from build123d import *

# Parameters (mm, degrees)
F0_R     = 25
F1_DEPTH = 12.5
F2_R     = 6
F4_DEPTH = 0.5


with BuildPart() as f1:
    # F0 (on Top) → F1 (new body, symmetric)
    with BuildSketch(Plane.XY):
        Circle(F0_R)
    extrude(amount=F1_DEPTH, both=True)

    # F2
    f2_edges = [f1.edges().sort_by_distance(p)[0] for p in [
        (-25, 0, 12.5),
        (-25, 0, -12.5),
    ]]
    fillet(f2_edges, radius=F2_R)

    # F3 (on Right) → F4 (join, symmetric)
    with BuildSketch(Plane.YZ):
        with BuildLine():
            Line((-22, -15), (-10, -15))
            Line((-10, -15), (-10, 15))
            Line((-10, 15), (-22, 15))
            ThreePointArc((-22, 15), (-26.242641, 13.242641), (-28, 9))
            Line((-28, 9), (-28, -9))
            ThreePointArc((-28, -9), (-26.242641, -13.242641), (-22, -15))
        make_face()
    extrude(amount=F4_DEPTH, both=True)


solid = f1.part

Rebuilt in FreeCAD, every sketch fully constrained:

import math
import FreeCAD as App
import Part
import Sketcher


def edges_at(feature, points):
    """Names of the edges that pass closest to the given points."""
    edges = feature.Shape.Edges
    near = lambda p: min(range(len(edges)), key=lambda i: edges[i].distToShape(Part.Vertex(*p))[0])
    return sorted({f"Edge{near(p) + 1}" for p in points})

doc = App.newDocument("Part")
body = doc.addObject("PartDesign::Body", "Body")

# Sketch on XY plane
sketch1 = doc.addObject("Sketcher::SketchObject", "Sketch")
body.addObject(sketch1)
sketch1.AttachmentSupport = (doc.XY_Plane, [""])
sketch1.MapMode = "FlatFace"
sketch1.addGeometry(Part.Circle(App.Vector(0, 0, 0), App.Vector(0, 0, 1), 25), False)
sketch1.addConstraint([
    Sketcher.Constraint("Coincident", 0, 3, -1, 1),
    Sketcher.Constraint("Diameter", 0, 50.0),
])
pad1 = doc.addObject("PartDesign::Pad", "Pad")
body.addObject(pad1)
pad1.Profile = sketch1
pad1.Length = 25
pad1.Midplane = True
doc.recompute()

fillet = doc.addObject("PartDesign::Fillet", "Fillet")
body.addObject(fillet)
fillet.Base = (pad1, edges_at(pad1, [(-25, 0, 12.5), (-25, 0, -12.5)]))
fillet.Radius = 6

# Sketch on YZ plane
sketch2 = doc.addObject("Sketcher::SketchObject", "Sketch001")
body.addObject(sketch2)
sketch2.AttachmentSupport = (doc.YZ_Plane, [""])
sketch2.MapMode = "FlatFace"
sketch2.addGeometry([
    Part.LineSegment(App.Vector(-22, -15, 0), App.Vector(-10, -15, 0)),  # 0
    Part.LineSegment(App.Vector(-10, -15, 0), App.Vector(-10, 15, 0)),  # 1
    Part.LineSegment(App.Vector(-10, 15, 0), App.Vector(-22, 15, 0)),  # 2
    Part.ArcOfCircle(Part.Circle(App.Vector(-22.000001, 9.000001, 0), App.Vector(0, 0, 1), 5.999999), math.radians(89.99999), math.radians(180.00001)),  # 3
    Part.LineSegment(App.Vector(-28, 9, 0), App.Vector(-28, -9, 0)),  # 4
    Part.ArcOfCircle(Part.Circle(App.Vector(-22.000001, -9.000001, 0), App.Vector(0, 0, 1), 5.999999), math.radians(179.99999), math.radians(270.00001)),  # 5
], False)
sketch2.addConstraint([
    Sketcher.Constraint("Coincident", 0, 2, 1, 1),
    Sketcher.Constraint("Coincident", 1, 2, 2, 1),
    Sketcher.Constraint("Tangent", 2, 2, 3, 1),
    Sketcher.Constraint("Tangent", 3, 2, 4, 1),
    Sketcher.Constraint("Tangent", 4, 2, 5, 1),
    Sketcher.Constraint("Tangent", 5, 2, 0, 1),
    Sketcher.Constraint("Horizontal", 0),
    Sketcher.Constraint("Vertical", 1),
    Sketcher.Constraint("Horizontal", 2),
    Sketcher.Constraint("Vertical", 4),
    Sketcher.Constraint("Equal", 3, 5),
    Sketcher.Constraint("Radius", 3, 5.999999),
    Sketcher.Constraint("DistanceX", 0, 1, 0, 2, 12.0),
    Sketcher.Constraint("DistanceY", 1, 1, 1, 2, 30.0),
    Sketcher.Constraint("DistanceX", 3, 3, -1, 1, 22.000001),
    Sketcher.Constraint("DistanceY", -1, 1, 3, 3, 9.000001),
])
pad2 = doc.addObject("PartDesign::Pad", "Pad001")
body.addObject(pad2)
pad2.Profile = sketch2
pad2.Length = 1
pad2.Midplane = True

doc.recompute()
